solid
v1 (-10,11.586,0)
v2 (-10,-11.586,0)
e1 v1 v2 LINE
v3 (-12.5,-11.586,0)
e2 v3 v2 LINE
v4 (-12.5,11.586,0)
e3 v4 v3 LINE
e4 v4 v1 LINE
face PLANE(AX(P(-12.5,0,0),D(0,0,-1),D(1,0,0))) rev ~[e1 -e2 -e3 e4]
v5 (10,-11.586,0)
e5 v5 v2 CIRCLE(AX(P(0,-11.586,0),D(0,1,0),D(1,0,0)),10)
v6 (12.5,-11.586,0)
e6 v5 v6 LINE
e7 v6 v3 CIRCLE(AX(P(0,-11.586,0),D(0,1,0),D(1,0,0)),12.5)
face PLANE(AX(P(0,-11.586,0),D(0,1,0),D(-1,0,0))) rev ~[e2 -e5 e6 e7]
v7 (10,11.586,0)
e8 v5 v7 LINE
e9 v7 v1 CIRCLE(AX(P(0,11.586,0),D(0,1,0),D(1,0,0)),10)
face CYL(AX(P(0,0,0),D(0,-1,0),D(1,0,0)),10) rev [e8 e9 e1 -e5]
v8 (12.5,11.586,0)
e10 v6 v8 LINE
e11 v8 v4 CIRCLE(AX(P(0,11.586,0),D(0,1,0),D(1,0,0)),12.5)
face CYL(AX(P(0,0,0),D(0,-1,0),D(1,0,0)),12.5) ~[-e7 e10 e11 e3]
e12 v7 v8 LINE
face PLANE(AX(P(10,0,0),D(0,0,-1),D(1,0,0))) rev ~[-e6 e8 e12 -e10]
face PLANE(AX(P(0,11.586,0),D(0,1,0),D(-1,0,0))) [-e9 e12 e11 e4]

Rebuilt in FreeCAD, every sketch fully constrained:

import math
import FreeCAD as App
import Part
import Sketcher

doc = App.newDocument("Part")
body = doc.addObject("PartDesign::Body", "Body")

# Sketch on XZ plane
sketch1 = body.newObject("Sketcher::SketchObject", "Sketch")
sketch1.AttachmentSupport = (doc.getObject("XZ_Plane"), [""])
sketch1.MapMode = "FlatFace"
sketch1.addGeometry([
    Part.ArcOfCircle(Part.Circle(App.Vector(0, 0, 0), App.Vector(0, 0, 1), 10), math.radians(180), math.radians(360)),
    Part.LineSegment(App.Vector(10, 0, 0), App.Vector(12.5, 0, 0)),
    Part.ArcOfCircle(Part.Circle(App.Vector(0, 0, 0), App.Vector(0, 0, 1), 12.5), math.radians(180), math.radians(360)),
    Part.LineSegment(App.Vector(-12.5, 0, 0), App.Vector(-10, 0, 0)),
], False)
sketch1.addConstraint([
    Sketcher.Constraint("Coincident", 0, 2, 1, 1),
    Sketcher.Constraint("Coincident", 1, 2, 2, 2),
    Sketcher.Constraint("Coincident", 2, 1, 3, 1),
    Sketcher.Constraint("Coincident", 3, 2, 0, 1),
    Sketcher.Constraint("Horizontal", 1),
    Sketcher.Constraint("Horizontal", 3),
    Sketcher.Constraint("Coincident", 0, 3, -1, 1),
    Sketcher.Constraint("Coincident", 2, 3, -1, 1),
    Sketcher.Constraint("PointOnObject", 0, 2, -1),
    Sketcher.Constraint("PointOnObject", 2, 1, -1),
    Sketcher.Constraint("Radius", 0, 10.0),
    Sketcher.Constraint("Radius", 2, 12.5),
])
pad1 = body.newObject("PartDesign::Pad", "Pad")
pad1.Profile = sketch1
pad1.Length = 23.172
pad1.Midplane = True

doc.recompute()
